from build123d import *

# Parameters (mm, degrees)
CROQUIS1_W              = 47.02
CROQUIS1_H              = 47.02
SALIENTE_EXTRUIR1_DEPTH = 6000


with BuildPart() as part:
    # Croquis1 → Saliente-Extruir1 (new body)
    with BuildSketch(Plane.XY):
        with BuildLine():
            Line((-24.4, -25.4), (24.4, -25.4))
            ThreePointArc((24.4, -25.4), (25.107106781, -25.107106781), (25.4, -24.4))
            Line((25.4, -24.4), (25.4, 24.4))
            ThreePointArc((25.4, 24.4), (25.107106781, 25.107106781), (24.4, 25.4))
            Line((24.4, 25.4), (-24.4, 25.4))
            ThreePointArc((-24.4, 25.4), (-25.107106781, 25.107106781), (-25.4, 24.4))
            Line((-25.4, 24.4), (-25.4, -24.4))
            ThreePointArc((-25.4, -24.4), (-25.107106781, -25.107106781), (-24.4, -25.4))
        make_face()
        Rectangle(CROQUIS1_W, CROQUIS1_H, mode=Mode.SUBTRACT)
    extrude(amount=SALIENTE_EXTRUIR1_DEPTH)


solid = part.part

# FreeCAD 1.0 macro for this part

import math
import FreeCAD as App
import Part
import Sketcher

V = App.Vector

doc = App.newDocument("Part")
body = doc.addObject("PartDesign::Body", "Body")

# Sketch on XY plane
sketch1 = doc.addObject("Sketcher::SketchObject", "Sketch")
body.addObject(sketch1)
sketch1.AttachmentSupport = (doc.XY_Plane, [""])
sketch1.MapMode = "FlatFace"
sketch1.addGeometry([
    Part.LineSegment(V(-24.4, -25.4, 0), V(24.4, -25.4, 0)),  # 0
    Part.ArcOfCircle(Part.Circle(V(24.4, -24.4, 0), V(0, 0, 1), 1), math.radians(-90), math.radians(0)),  # 1
    Part.LineSegment(V(25.4, -24.4, 0), V(25.4, 24.4, 0)),  # 2
    Part.ArcOfCircle(Part.Circle(V(24.4, 24.4, 0), V(0, 0, 1), 1), math.radians(0), math.radians(90)),  # 3
    Part.LineSegment(V(24.4, 25.4, 0), V(-24.4, 25.4, 0)),  # 4
    Part.ArcOfCircle(Part.Circle(V(-24.4, 24.4, 0), V(0, 0, 1), 1), math.radians(90), math.radians(180)),  # 5
    Part.LineSegment(V(-25.4, 24.4, 0), V(-25.4, -24.4, 0)),  # 6
    Part.ArcOfCircle(Part.Circle(V(-24.4, -24.4, 0), V(0, 0, 1), 1), math.radians(-180), math.radians(-90)),  # 7
    Part.LineSegment(V(23.5, -23.5, 0), V(-23.5, -23.5, 0)),  # 8
    Part.LineSegment(V(-23.5, -23.5, 0), V(-23.5, 23.5, 0)),  # 9
    Part.LineSegment(V(-23.5, 23.5, 0), V(23.5, 23.5, 0)),  # 10
    Part.LineSegment(V(23.5, 23.5, 0), V(23.5, -23.5, 0)),  # 11
], False)
sketch1.addConstraint([
    Sketcher.Constraint("Tangent", 0, 2, 1, 1),
    Sketcher.Constraint("Tangent", 1, 2, 2, 1),
    Sketcher.Constraint("Tangent", 2, 2, 3, 1),
    Sketcher.Constraint("Tangent", 3, 2, 4, 1),
    Sketcher.Constraint("Tangent", 4, 2, 5, 1),
    Sketcher.Constraint("Tangent", 5, 2, 6, 1),
    Sketcher.Constraint("Tangent", 6, 2, 7, 1),
    Sketcher.Constraint("Tangent", 7, 2, 0, 1),
    Sketcher.Constraint("Coincident", 8, 2, 9, 1),
    Sketcher.Constraint("Coincident", 9, 2, 10, 1),
    Sketcher.Constraint("Coincident", 10, 2, 11, 1),
    Sketcher.Constraint("Coincident", 11, 2, 8, 1),
    Sketcher.Constraint("Horizontal", 0),
    Sketcher.Constraint("Vertical", 2),
    Sketcher.Constraint("Horizontal", 4),
    Sketcher.Constraint("Vertical", 6),
    Sketcher.Constraint("Horizontal", 8),
    Sketcher.Constraint("Vertical", 9),
    Sketcher.Constraint("Horizontal", 10),
    Sketcher.Constraint("Vertical", 11),
    Sketcher.Constraint("Equal", 1, 3),
    Sketcher.Constraint("Equal", 3, 5),
    Sketcher.Constraint("Equal", 5, 7),
    Sketcher.Constraint("Symmetric", 1, 3, 5, 3, -1, 1),
    Sketcher.Constraint("Symmetric", 8, 2, 10, 2, -1, 1),
    Sketcher.Constraint("Equal", 4, 2),
    Sketcher.Constraint("Equal", 10, 9),
    Sketcher.Constraint("Radius", 1, 1.0),
    Sketcher.Constraint("DistanceX", 0, 1, 0, 2, 48.8),
    Sketcher.Constraint("DistanceX", 8, 2, 8, 1, 47.02),
])
pad1 = doc.addObject("PartDesign::Pad", "Pad")
body.addObject(pad1)
pad1.Profile = sketch1
pad1.Length = 6000

doc.recompute()
